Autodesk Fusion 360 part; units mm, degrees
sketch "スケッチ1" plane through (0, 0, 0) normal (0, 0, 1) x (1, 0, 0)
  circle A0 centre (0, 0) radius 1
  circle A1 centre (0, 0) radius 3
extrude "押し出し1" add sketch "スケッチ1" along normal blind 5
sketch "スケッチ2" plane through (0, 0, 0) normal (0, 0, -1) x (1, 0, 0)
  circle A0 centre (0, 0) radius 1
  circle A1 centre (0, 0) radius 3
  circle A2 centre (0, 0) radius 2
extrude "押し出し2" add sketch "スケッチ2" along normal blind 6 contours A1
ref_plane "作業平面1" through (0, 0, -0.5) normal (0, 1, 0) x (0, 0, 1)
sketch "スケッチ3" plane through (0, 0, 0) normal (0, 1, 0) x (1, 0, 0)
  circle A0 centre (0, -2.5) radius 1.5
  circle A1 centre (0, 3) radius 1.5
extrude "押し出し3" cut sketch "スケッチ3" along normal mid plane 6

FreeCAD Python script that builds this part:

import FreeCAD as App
import Part
import Sketcher
from FreeCAD import Vector

doc = App.newDocument("Part")
params = doc.addObject("Spreadsheet::Sheet", "Params")
for row, (alias, value) in enumerate([
    ("sketch1_diameter", "6 mm"),
    ("sketch1_diameter2", "2 mm"),
    ("pad1_length", "5 mm"),
    ("sketch2_diameter", "6 mm"),
    ("sketch2_diameter2", "4 mm"),
    ("pad2_length", "6 mm"),
    ("sketch3_diameter", "3 mm"),
    ("pocket1_length", "6 mm"),
], start=1):
    params.set(f"A{row}", alias)
    params.set(f"B{row}", "=" + value)
    params.setAlias(f"B{row}", alias)

body = doc.addObject("PartDesign::Body", "Body")

# Sketch on XY plane
sketch1 = doc.addObject("Sketcher::SketchObject", "Sketch")
body.addObject(sketch1)
sketch1.AttachmentSupport = (doc.XY_Plane, [""])
sketch1.MapMode = "FlatFace"
sketch1.addGeometry(Part.Circle(Vector(0, 0, 0), Vector(0, 0, 1), 3), False)
sketch1.addGeometry(Part.Circle(Vector(0, 0, 0), Vector(0, 0, 1), 1), False)
sketch1.addConstraint(Sketcher.Constraint("Coincident", 0, 3, -1, 1))
sketch1.addConstraint(Sketcher.Constraint("Coincident", 1, 3, -1, 1))
sketch1.addConstraint(Sketcher.Constraint("Diameter", 0, 6.0))
sketch1.addConstraint(Sketcher.Constraint("Diameter", 1, 2.0))
sketch1.setExpression("Constraints[2]", "Params.sketch1_diameter")
sketch1.setExpression("Constraints[3]", "Params.sketch1_diameter2")
pad1 = doc.addObject("PartDesign::Pad", "Pad")
body.addObject(pad1)
pad1.Profile = sketch1
pad1.setExpression("Length", "Params.pad1_length")

# Sketch on XY plane
sketch2 = doc.addObject("Sketcher::SketchObject", "Sketch001")
body.addObject(sketch2)
sketch2.AttachmentSupport = (doc.XY_Plane, [""])
sketch2.MapMode = "FlatFace"
sketch2.addGeometry(Part.Circle(Vector(0, 0, 0), Vector(0, 0, 1), 3), False)
sketch2.addGeometry(Part.Circle(Vector(0, 0, 0), Vector(0, 0, 1), 2), False)
sketch2.addConstraint(Sketcher.Constraint("Coincident", 0, 3, -1, 1))
sketch2.addConstraint(Sketcher.Constraint("Coincident", 1, 3, -1, 1))
sketch2.addConstraint(Sketcher.Constraint("Diameter", 0, 6.0))
sketch2.addConstraint(Sketcher.Constraint("Diameter", 1, 4.0))
sketch2.setExpression("Constraints[2]", "Params.sketch2_diameter")
sketch2.setExpression("Constraints[3]", "Params.sketch2_diameter2")
pad2 = doc.addObject("PartDesign::Pad", "Pad001")
body.addObject(pad2)
pad2.Profile = sketch2
pad2.setExpression("Length", "Params.pad2_length")
pad2.Reversed = True

# Sketch on XZ plane
sketch3 = doc.addObject("Sketcher::SketchObject", "Sketch002")
body.addObject(sketch3)
sketch3.AttachmentSupport = (doc.XZ_Plane, [""])
sketch3.MapMode = "FlatFace"
sketch3.addGeometry(Part.Circle(Vector(0, 2.5, 0), Vector(0, 0, 1), 1.5), False)
sketch3.addGeometry(Part.Circle(Vector(0, -3, 0), Vector(0, 0, 1), 1.5), False)
sketch3.addConstraint(Sketcher.Constraint("Equal", 0, 1))
sketch3.addConstraint(Sketcher.Constraint("PointOnObject", 0, 3, -2))
sketch3.addConstraint(Sketcher.Constraint("PointOnObject", 1, 3, -2))
sketch3.addConstraint(Sketcher.Constraint("Diameter", 0, 3.0))
sketch3.addConstraint(Sketcher.Constraint("DistanceY", 1, 3, -1, 1, 3.0))
sketch3.addConstraint(Sketcher.Constraint("DistanceY", -1, 1, 0, 3, 2.5))
sketch3.setExpression("Constraints[3]", "Params.sketch3_diameter")
pocket1 = doc.addObject("PartDesign::Pocket", "Pocket")
body.addObject(pocket1)
pocket1.Profile = sketch3
pocket1.setExpression("Length", "Params.pocket1_length")
pocket1.Midplane = True

doc.recompute()
